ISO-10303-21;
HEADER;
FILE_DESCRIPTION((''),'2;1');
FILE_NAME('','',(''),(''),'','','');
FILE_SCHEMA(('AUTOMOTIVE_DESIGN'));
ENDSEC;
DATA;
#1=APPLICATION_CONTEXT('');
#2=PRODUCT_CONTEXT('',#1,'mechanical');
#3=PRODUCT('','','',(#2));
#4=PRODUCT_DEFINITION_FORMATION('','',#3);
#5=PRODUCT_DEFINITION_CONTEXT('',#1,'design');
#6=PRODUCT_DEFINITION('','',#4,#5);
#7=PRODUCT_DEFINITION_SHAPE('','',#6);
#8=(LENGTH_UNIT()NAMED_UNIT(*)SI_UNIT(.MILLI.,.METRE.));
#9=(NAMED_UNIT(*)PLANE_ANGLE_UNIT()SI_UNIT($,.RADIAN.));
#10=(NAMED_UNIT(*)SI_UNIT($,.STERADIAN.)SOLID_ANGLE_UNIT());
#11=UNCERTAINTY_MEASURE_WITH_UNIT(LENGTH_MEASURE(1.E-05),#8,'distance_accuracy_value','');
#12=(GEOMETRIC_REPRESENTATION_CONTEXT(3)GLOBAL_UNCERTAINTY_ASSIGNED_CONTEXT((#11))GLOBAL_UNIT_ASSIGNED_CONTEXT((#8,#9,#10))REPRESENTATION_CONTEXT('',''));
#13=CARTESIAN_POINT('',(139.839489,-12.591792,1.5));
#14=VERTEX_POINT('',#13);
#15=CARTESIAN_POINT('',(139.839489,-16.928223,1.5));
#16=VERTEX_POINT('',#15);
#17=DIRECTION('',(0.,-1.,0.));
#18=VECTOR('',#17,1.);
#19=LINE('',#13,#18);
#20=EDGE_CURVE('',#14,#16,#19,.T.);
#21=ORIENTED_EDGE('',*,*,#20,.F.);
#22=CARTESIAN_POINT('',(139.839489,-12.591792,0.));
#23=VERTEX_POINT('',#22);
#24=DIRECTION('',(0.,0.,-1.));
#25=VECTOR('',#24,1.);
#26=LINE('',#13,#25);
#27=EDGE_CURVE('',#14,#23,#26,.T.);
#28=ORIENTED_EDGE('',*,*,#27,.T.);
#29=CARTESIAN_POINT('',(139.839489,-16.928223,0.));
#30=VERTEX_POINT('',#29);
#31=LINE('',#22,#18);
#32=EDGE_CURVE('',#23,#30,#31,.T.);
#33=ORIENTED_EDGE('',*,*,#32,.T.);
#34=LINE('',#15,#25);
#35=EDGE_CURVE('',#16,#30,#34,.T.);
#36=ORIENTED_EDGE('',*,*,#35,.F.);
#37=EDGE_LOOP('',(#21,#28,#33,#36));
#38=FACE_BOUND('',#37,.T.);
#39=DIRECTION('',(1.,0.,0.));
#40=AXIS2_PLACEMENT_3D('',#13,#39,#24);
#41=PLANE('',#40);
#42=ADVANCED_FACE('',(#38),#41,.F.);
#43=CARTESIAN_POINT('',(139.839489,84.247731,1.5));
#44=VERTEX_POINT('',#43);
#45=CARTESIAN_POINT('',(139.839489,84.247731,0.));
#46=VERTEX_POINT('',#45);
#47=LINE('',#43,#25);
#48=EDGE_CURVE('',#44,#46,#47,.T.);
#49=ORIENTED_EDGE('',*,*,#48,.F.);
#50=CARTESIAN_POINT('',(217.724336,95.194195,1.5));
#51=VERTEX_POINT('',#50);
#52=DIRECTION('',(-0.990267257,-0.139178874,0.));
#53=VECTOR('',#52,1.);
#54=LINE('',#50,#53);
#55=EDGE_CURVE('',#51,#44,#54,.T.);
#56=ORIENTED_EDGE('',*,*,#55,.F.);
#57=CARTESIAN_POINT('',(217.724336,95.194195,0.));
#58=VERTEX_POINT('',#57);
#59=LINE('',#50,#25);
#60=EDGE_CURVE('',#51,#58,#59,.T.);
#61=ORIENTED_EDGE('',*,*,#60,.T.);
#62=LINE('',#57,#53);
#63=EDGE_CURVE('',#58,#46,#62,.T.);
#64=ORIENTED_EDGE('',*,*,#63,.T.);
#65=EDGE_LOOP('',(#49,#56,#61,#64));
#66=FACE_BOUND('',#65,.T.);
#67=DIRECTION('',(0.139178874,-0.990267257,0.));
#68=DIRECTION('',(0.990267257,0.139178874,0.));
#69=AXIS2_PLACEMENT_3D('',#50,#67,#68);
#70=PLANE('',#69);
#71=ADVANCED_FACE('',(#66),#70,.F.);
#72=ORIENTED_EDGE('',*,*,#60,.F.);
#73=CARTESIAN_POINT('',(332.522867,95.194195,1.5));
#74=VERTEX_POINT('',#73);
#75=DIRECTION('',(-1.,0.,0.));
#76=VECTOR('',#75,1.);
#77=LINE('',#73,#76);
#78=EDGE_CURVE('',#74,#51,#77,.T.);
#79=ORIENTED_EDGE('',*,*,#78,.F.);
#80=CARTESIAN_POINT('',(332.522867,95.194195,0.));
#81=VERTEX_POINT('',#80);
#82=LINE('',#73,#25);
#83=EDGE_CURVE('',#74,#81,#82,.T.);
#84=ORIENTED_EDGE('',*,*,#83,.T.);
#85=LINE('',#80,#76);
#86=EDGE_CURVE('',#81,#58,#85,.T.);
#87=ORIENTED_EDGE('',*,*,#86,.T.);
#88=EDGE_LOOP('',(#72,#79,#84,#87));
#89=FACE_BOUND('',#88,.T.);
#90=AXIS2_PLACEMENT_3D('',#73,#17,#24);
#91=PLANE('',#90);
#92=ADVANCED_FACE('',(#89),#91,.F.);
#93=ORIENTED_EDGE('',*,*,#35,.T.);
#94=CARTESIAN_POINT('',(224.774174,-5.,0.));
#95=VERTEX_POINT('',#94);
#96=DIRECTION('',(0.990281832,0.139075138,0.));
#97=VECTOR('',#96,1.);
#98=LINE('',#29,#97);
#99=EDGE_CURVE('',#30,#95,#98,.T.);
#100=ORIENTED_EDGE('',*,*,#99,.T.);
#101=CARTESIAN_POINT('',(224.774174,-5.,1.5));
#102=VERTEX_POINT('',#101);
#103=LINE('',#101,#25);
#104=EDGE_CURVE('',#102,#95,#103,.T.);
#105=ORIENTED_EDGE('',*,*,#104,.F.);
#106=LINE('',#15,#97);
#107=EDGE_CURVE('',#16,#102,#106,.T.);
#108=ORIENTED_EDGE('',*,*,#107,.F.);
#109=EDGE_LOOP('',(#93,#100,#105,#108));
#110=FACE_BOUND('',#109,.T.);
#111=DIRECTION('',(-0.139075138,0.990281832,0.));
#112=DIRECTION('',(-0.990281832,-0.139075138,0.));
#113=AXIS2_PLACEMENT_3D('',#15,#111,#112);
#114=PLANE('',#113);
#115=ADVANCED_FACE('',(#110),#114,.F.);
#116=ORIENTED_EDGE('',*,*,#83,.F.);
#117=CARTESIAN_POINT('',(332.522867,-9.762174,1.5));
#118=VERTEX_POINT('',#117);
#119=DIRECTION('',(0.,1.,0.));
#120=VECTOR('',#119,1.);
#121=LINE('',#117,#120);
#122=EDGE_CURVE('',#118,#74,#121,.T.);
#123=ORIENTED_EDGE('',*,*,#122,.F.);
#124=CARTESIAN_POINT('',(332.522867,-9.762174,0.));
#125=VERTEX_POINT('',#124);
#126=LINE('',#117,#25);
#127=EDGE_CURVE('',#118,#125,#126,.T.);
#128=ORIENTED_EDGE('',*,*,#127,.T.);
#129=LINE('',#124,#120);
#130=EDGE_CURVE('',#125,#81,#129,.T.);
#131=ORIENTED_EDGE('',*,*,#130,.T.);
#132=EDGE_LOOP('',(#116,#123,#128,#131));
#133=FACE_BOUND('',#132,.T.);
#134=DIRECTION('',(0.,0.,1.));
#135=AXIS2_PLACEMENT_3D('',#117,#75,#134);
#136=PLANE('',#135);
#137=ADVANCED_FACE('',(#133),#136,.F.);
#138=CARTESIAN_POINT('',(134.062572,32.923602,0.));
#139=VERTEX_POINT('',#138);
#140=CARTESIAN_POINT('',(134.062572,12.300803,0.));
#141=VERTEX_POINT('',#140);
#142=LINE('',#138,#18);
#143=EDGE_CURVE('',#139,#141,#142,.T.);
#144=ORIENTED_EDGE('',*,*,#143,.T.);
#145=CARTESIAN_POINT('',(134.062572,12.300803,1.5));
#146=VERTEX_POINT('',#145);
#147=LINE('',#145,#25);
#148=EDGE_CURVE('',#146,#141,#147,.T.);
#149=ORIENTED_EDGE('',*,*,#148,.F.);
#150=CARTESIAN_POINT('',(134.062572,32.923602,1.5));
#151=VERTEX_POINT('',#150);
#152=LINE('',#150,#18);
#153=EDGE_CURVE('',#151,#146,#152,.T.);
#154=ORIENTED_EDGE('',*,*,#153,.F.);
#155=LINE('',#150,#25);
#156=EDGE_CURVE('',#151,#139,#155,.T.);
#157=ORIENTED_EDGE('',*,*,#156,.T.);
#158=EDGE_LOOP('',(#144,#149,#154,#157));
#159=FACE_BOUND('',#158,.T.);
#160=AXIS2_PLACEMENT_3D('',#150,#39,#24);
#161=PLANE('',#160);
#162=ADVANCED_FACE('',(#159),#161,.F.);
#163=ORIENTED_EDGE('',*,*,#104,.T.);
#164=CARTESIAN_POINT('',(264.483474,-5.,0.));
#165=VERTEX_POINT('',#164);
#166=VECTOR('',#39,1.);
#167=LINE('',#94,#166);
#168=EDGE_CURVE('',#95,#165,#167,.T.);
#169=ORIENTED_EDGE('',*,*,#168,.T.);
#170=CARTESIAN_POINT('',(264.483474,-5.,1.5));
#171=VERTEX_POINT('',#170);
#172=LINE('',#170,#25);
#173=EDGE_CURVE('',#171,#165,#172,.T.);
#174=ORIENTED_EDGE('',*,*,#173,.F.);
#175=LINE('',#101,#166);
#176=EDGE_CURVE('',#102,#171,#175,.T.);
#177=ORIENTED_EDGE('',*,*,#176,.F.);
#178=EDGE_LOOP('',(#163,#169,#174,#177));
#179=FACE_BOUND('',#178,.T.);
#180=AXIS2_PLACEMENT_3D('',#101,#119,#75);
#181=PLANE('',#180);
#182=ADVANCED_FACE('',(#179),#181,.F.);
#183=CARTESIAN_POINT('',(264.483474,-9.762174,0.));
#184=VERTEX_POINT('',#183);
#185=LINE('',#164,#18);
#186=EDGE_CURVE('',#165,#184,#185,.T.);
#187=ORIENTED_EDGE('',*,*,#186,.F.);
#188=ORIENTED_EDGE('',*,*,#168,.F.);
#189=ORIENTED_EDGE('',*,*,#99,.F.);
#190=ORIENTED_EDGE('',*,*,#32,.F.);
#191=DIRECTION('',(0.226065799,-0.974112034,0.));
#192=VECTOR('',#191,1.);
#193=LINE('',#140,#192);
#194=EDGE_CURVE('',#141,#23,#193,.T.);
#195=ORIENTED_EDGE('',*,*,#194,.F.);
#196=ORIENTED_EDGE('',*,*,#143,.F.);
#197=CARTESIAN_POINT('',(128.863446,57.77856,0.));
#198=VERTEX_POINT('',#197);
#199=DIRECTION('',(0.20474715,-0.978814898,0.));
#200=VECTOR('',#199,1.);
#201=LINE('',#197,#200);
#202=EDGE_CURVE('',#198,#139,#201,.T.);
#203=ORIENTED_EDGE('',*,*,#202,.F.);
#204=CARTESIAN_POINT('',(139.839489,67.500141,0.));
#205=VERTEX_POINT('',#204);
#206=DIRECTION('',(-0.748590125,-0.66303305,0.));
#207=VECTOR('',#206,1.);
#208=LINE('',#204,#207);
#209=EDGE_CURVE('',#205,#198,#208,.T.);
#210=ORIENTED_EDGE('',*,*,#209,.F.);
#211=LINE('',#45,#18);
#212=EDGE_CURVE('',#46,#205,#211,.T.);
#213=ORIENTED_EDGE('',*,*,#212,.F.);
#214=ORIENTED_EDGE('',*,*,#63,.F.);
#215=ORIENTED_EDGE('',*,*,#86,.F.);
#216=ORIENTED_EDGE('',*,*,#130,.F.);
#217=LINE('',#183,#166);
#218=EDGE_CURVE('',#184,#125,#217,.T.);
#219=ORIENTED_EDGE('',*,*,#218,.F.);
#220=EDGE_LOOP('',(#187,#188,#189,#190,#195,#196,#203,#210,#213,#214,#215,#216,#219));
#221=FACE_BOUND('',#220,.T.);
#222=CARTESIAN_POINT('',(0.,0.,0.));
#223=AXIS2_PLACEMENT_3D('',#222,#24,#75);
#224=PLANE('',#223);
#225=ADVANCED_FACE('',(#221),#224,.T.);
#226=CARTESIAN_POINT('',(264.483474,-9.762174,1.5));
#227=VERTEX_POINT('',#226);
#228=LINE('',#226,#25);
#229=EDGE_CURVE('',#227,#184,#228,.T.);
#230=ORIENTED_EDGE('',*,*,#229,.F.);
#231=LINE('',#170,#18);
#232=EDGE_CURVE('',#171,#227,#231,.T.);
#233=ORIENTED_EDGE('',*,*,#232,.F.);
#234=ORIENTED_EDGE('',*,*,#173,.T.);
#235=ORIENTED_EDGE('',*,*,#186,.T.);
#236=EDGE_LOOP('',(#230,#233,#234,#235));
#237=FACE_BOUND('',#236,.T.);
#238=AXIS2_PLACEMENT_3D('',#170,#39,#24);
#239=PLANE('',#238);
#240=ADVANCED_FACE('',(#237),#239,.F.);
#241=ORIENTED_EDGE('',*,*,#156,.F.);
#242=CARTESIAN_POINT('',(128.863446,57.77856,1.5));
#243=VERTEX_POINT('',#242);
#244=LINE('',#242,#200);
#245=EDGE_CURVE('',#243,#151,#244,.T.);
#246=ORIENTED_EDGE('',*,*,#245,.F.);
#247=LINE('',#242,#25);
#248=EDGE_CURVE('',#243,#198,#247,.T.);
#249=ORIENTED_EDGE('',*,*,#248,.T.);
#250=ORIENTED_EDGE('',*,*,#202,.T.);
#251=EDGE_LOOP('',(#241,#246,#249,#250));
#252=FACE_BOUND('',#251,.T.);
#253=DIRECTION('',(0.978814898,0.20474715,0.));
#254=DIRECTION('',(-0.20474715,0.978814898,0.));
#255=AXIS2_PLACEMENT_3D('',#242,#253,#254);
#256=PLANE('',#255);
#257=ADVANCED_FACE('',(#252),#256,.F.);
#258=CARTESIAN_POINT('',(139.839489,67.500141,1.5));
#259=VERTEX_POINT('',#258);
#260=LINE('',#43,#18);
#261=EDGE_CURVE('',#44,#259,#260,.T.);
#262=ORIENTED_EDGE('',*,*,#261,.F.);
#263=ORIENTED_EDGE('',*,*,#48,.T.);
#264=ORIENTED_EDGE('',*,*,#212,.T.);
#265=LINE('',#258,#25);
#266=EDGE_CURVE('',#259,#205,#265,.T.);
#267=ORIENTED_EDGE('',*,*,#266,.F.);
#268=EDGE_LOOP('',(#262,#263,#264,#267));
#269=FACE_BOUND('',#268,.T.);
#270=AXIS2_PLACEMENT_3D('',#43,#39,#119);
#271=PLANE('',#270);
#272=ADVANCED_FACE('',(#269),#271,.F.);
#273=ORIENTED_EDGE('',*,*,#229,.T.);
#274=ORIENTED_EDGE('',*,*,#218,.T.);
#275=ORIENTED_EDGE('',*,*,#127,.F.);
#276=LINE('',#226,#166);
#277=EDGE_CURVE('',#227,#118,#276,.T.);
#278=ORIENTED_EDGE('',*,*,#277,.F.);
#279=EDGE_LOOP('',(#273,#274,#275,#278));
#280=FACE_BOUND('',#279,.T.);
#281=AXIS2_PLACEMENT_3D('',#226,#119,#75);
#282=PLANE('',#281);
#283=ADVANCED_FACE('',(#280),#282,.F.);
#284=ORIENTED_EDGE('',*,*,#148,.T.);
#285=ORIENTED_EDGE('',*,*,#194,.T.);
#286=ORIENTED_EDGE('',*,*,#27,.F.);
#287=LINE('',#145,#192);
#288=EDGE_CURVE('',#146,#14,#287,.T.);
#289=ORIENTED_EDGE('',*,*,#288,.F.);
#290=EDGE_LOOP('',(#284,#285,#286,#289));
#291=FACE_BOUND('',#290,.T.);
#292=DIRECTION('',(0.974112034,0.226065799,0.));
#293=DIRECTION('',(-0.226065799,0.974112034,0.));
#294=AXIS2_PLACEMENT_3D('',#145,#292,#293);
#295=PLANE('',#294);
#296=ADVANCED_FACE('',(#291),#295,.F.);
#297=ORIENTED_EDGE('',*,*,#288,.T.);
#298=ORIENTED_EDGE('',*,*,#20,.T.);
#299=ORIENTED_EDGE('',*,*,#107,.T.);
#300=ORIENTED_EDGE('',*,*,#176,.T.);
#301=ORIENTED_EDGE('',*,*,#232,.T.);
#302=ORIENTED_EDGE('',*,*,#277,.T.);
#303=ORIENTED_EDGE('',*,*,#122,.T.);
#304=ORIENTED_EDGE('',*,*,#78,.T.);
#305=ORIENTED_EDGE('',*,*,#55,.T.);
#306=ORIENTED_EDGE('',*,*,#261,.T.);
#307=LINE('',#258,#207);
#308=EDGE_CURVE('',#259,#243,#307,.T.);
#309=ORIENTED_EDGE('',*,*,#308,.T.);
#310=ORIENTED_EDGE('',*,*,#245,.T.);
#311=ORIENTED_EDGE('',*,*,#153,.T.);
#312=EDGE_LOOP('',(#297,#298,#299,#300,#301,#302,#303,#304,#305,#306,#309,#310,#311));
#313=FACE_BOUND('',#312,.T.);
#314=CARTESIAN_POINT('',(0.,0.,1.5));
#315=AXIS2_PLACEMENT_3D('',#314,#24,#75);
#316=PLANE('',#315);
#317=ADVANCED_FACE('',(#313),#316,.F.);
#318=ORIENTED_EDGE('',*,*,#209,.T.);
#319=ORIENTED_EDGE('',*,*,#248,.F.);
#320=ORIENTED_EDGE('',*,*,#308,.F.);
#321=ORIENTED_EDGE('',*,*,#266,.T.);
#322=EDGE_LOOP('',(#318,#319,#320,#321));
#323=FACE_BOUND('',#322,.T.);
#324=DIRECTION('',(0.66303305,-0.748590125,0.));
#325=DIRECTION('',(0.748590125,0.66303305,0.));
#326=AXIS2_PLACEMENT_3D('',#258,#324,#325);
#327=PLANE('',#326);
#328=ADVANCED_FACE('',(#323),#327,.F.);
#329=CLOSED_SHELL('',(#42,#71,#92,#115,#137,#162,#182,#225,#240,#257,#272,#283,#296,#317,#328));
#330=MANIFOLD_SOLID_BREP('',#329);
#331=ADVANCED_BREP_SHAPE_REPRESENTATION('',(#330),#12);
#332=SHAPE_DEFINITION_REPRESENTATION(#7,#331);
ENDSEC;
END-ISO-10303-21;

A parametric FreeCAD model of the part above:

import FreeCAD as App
import Part
import Sketcher
from FreeCAD import Vector
Q = App.Units.Quantity


def add_polygon(sketch, points):
    """Adds a closed chain of lines whose ends are joined by coincident constraints."""
    first, n = sketch.GeometryCount, len(points)
    for a, b in zip(points, points[1:] + points[:1]):
        sketch.addGeometry(Part.LineSegment(App.Vector(*a, 0), App.Vector(*b, 0)), False)
    for i in range(n):
        sketch.addConstraint(Sketcher.Constraint("Coincident", first + i, 2, first + (i + 1) % n, 1))

doc = App.newDocument("Part")
body = doc.addObject("PartDesign::Body", "Body")

sketch1 = body.newObject("Sketcher::SketchObject", "Sketch")
sketch1.AttachmentSupport = (doc.getObject("XY_Plane"), [""])
sketch1.MapMode = "FlatFace"
add_polygon(sketch1, [(134.1, 32.9), (134.1, 12.3), (139.8, -12.6), (139.8, -16.9), (224.8, -5), (264.5, -5), (264.5, -9.8), (332.5, -9.8), (332.5, 95.2), (217.7, 95.2), (139.8, 84.2), (139.8, 67.5), (128.9, 57.8)])
sketch1.addConstraint(Sketcher.Constraint("Vertical", 0))
sketch1.addConstraint(Sketcher.Constraint("Vertical", 2))
sketch1.addConstraint(Sketcher.Constraint("Horizontal", 4))
sketch1.addConstraint(Sketcher.Constraint("Vertical", 5))
sketch1.addConstraint(Sketcher.Constraint("Horizontal", 6))
sketch1.addConstraint(Sketcher.Constraint("Vertical", 7))
sketch1.addConstraint(Sketcher.Constraint("Horizontal", 8))
sketch1.addConstraint(Sketcher.Constraint("Vertical", 10))
sketch1.addConstraint(Sketcher.Constraint("Vertical", 2, 2, 9, 2))
sketch1.addConstraint(Sketcher.Constraint("DistanceY", 3, 2, -1, 1, Q("5 mm")))
sketch1.addConstraint(Sketcher.Constraint("DistanceX", 4, 1, 4, 2, Q("39.709299 mm")))
sketch1.addConstraint(Sketcher.Constraint("DistanceY", 0, 2, 0, 1, Q("20.622799 mm")))
sketch1.addConstraint(Sketcher.Constraint("DistanceX", 8, 2, 8, 1, Q("114.798531 mm")))
sketch1.addConstraint(Sketcher.Constraint("DistanceY", 2, 2, 2, 1, Q("4.336431 mm")))
sketch1.addConstraint(Sketcher.Constraint("DistanceY", 7, 1, 7, 2, Q("104.956369 mm")))
sketch1.addConstraint(Sketcher.Constraint("DistanceY", 10, 2, 10, 1, Q("16.74759 mm")))
sketch1.addConstraint(Sketcher.Constraint("DistanceY", -1, 1, 12, 2, Q("32.923602 mm")))
sketch1.addConstraint(Sketcher.Constraint("DistanceX", 0, 2, 4, 2, Q("130.420901 mm")))
sketch1.addConstraint(Sketcher.Constraint("Distance", 1, Q("25.55414 mm")))
sketch1.addConstraint(Sketcher.Constraint("Distance", 9, Q("78.65033 mm")))
sketch1.addConstraint(Sketcher.Constraint("Distance", 12, Q("25.392909 mm")))
sketch1.addConstraint(Sketcher.Constraint("DistanceX", 6, 1, 6, 2, Q("68.039393 mm")))
sketch1.addConstraint(Sketcher.Constraint("DistanceY", 5, 2, 5, 1, Q("4.762174 mm")))
sketch1.addConstraint(Sketcher.Constraint("DistanceX", -1, 1, 1, 2, Q("139.839489 mm")))
sketch1.addConstraint(Sketcher.Constraint("DistanceY", -1, 1, 9, 2, Q("84.247731 mm")))
sketch1.addConstraint(Sketcher.Constraint("DistanceY", -1, 1, 11, 2, Q("57.77856 mm")))
pad1 = body.newObject("PartDesign::Pad", "Pad")
pad1.Profile = sketch1
pad1.Length = 1.5

doc.recompute()
